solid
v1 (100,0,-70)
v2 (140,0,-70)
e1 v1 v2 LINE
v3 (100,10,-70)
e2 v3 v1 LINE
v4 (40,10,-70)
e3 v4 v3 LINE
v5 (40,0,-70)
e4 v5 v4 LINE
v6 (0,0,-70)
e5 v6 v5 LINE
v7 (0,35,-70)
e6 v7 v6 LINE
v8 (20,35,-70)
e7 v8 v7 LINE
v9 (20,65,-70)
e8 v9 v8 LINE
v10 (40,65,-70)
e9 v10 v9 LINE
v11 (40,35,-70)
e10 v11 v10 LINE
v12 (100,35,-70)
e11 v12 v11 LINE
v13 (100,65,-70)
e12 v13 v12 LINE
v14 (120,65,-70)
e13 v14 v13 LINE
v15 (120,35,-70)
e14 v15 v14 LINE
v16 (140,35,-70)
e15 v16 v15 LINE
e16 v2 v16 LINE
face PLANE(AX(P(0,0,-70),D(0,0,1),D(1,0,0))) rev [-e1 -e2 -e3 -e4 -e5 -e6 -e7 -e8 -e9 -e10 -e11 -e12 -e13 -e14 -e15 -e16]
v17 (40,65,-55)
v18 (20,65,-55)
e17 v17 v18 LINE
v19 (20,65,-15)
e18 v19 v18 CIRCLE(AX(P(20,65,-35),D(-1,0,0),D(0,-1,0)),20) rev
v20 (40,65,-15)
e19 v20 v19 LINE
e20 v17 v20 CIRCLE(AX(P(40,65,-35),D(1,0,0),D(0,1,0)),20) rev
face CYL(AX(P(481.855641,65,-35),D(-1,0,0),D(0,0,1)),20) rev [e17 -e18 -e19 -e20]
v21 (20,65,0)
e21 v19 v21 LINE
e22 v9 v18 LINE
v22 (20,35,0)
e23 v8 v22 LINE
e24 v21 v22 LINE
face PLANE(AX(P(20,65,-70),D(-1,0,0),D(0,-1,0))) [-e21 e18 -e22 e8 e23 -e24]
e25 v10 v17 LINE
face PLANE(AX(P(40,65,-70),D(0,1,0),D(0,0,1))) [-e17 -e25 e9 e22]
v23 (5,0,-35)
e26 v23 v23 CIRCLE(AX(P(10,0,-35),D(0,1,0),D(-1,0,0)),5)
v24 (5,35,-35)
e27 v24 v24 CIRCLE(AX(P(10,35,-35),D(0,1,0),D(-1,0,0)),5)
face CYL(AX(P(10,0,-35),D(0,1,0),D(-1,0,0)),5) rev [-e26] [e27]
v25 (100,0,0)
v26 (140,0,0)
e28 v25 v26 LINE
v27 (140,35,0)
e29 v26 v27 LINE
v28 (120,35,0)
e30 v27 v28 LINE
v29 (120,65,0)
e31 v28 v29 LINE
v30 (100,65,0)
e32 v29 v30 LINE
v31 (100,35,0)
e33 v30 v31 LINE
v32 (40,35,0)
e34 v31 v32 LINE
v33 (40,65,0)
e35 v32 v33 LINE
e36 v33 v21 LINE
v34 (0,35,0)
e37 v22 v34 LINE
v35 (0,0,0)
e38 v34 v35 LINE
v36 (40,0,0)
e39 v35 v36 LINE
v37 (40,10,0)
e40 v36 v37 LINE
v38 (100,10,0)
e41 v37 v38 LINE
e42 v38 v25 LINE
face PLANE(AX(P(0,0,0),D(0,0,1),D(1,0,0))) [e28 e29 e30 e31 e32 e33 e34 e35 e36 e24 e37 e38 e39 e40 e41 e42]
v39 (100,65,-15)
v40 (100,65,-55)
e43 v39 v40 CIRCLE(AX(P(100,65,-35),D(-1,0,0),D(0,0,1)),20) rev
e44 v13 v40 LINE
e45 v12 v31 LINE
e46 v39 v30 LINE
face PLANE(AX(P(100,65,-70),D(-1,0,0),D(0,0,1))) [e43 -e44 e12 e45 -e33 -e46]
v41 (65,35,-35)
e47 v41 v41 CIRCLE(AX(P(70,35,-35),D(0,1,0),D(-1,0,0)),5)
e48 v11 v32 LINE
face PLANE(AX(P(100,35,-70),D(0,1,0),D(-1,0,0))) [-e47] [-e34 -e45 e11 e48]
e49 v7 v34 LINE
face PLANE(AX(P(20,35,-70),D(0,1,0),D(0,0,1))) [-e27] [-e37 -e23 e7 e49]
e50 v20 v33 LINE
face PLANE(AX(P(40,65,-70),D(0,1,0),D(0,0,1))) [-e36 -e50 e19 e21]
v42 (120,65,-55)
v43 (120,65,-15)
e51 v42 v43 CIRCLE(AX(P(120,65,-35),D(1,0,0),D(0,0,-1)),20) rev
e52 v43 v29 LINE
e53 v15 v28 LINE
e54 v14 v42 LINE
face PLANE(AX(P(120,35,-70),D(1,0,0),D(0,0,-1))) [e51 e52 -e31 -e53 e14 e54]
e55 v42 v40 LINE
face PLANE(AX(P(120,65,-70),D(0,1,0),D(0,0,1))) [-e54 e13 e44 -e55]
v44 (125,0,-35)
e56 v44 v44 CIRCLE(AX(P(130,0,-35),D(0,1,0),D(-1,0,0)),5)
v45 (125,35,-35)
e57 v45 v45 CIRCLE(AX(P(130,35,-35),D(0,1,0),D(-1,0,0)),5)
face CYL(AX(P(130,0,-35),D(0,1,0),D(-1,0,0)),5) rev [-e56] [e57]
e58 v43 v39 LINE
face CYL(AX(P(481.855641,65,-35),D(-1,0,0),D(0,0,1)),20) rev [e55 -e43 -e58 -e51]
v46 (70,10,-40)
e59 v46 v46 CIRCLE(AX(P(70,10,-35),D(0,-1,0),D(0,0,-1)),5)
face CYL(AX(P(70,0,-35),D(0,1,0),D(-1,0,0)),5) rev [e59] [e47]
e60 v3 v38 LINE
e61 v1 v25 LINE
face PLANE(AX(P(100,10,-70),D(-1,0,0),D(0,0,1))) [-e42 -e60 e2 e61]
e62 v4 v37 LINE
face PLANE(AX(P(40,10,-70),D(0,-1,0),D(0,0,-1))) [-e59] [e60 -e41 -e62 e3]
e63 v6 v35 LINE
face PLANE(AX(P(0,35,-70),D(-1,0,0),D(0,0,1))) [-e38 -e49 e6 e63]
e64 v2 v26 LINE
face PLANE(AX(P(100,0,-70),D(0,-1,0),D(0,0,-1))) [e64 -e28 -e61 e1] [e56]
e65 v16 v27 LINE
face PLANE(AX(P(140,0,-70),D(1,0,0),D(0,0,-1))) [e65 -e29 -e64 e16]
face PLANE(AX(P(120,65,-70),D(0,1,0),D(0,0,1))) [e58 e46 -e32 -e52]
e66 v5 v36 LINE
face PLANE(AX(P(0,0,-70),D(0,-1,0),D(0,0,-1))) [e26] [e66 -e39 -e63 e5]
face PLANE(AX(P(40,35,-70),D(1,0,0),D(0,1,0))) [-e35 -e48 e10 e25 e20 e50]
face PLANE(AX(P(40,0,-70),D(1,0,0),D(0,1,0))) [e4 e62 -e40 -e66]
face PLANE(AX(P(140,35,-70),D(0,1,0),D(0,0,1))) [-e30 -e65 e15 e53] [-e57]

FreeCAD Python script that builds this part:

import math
import FreeCAD as App
import Part
import Sketcher

V = App.Vector

doc = App.newDocument("Part")
body = doc.addObject("PartDesign::Body", "Body")

# Sketch on XY plane
sketch1 = doc.addObject("Sketcher::SketchObject", "Sketch")
body.addObject(sketch1)
sketch1.AttachmentSupport = (doc.XY_Plane, [""])
sketch1.MapMode = "FlatFace"
sketch1.addGeometry(Part.LineSegment(V(0, 0, 0), V(40, 0, 0)), False)
sketch1.addGeometry(Part.LineSegment(V(40, 0, 0), V(40, 10, 0)), False)
sketch1.addGeometry(Part.LineSegment(V(40, 10, 0), V(100, 10, 0)), False)
sketch1.addGeometry(Part.LineSegment(V(100, 10, 0), V(100, 0, 0)), False)
sketch1.addGeometry(Part.LineSegment(V(100, 0, 0), V(140, 0, 0)), False)
sketch1.addGeometry(Part.LineSegment(V(140, 0, 0), V(140, 35, 0)), False)
sketch1.addGeometry(Part.LineSegment(V(140, 35, 0), V(120, 35, 0)), False)
sketch1.addGeometry(Part.LineSegment(V(120, 35, 0), V(120, 65, 0)), False)
sketch1.addGeometry(Part.LineSegment(V(120, 65, 0), V(100, 65, 0)), False)
sketch1.addGeometry(Part.LineSegment(V(100, 65, 0), V(100, 35, 0)), False)
sketch1.addGeometry(Part.LineSegment(V(100, 35, 0), V(40, 35, 0)), False)
sketch1.addGeometry(Part.LineSegment(V(40, 35, 0), V(40, 65, 0)), False)
sketch1.addGeometry(Part.LineSegment(V(40, 65, 0), V(20, 65, 0)), False)
sketch1.addGeometry(Part.LineSegment(V(20, 65, 0), V(20, 35, 0)), False)
sketch1.addGeometry(Part.LineSegment(V(20, 35, 0), V(0, 35, 0)), False)
sketch1.addGeometry(Part.LineSegment(V(0, 35, 0), V(0, 0, 0)), False)
sketch1.addConstraint(Sketcher.Constraint("Coincident", 0, 2, 1, 1))
sketch1.addConstraint(Sketcher.Constraint("Coincident", 1, 2, 2, 1))
sketch1.addConstraint(Sketcher.Constraint("Coincident", 2, 2, 3, 1))
sketch1.addConstraint(Sketcher.Constraint("Coincident", 3, 2, 4, 1))
sketch1.addConstraint(Sketcher.Constraint("Coincident", 4, 2, 5, 1))
sketch1.addConstraint(Sketcher.Constraint("Coincident", 5, 2, 6, 1))
sketch1.addConstraint(Sketcher.Constraint("Coincident", 6, 2, 7, 1))
sketch1.addConstraint(Sketcher.Constraint("Coincident", 7, 2, 8, 1))
sketch1.addConstraint(Sketcher.Constraint("Coincident", 8, 2, 9, 1))
sketch1.addConstraint(Sketcher.Constraint("Coincident", 9, 2, 10, 1))
sketch1.addConstraint(Sketcher.Constraint("Coincident", 10, 2, 11, 1))
sketch1.addConstraint(Sketcher.Constraint("Coincident", 11, 2, 12, 1))
sketch1.addConstraint(Sketcher.Constraint("Coincident", 12, 2, 13, 1))
sketch1.addConstraint(Sketcher.Constraint("Coincident", 13, 2, 14, 1))
sketch1.addConstraint(Sketcher.Constraint("Coincident", 14, 2, 15, 1))
sketch1.addConstraint(Sketcher.Constraint("Coincident", 15, 2, 0, 1))
sketch1.addConstraint(Sketcher.Constraint("Horizontal", 0))
sketch1.addConstraint(Sketcher.Constraint("Vertical", 1))
sketch1.addConstraint(Sketcher.Constraint("Horizontal", 2))
sketch1.addConstraint(Sketcher.Constraint("Vertical", 3))
sketch1.addConstraint(Sketcher.Constraint("Horizontal", 4))
sketch1.addConstraint(Sketcher.Constraint("Vertical", 5))
sketch1.addConstraint(Sketcher.Constraint("Horizontal", 6))
sketch1.addConstraint(Sketcher.Constraint("Vertical", 7))
sketch1.addConstraint(Sketcher.Constraint("Horizontal", 8))
sketch1.addConstraint(Sketcher.Constraint("Vertical", 9))
sketch1.addConstraint(Sketcher.Constraint("Horizontal", 10))
sketch1.addConstraint(Sketcher.Constraint("Vertical", 11))
sketch1.addConstraint(Sketcher.Constraint("Horizontal", 12))
sketch1.addConstraint(Sketcher.Constraint("Vertical", 13))
sketch1.addConstraint(Sketcher.Constraint("Horizontal", 14))
sketch1.addConstraint(Sketcher.Constraint("Vertical", 15))
sketch1.addConstraint(Sketcher.Constraint("Coincident", 15, 2, -1, 1))
sketch1.addConstraint(Sketcher.Constraint("PointOnObject", 3, 2, -1))
sketch1.addConstraint(Sketcher.Constraint("Horizontal", 6, 2, 9, 2))
sketch1.addConstraint(Sketcher.Constraint("Horizontal", 8, 2, 11, 2))
sketch1.addConstraint(Sketcher.Constraint("Horizontal", 10, 2, 13, 2))
sketch1.addConstraint(Sketcher.Constraint("Vertical", 3, 2, 8, 2))
sketch1.addConstraint(Sketcher.Constraint("Vertical", 1, 2, 10, 2))
sketch1.addConstraint(Sketcher.Constraint("Equal", 0, 4))
sketch1.addConstraint(Sketcher.Constraint("Equal", 6, 8))
sketch1.addConstraint(Sketcher.Constraint("Equal", 8, 12))
sketch1.addConstraint(Sketcher.Constraint("DistanceX", 0, 1, 0, 2, 40.0))
sketch1.addConstraint(Sketcher.Constraint("DistanceX", 2, 1, 2, 2, 60.0))
sketch1.addConstraint(Sketcher.Constraint("DistanceY", 1, 1, 1, 2, 10.0))
sketch1.addConstraint(Sketcher.Constraint("DistanceY", 5, 1, 5, 2, 35.0))
sketch1.addConstraint(Sketcher.Constraint("DistanceY", 7, 1, 7, 2, 30.0))
pad1 = doc.addObject("PartDesign::Pad", "Pad")
body.addObject(pad1)
pad1.Profile = sketch1
pad1.Length = 70
pad1.Reversed = True

# Sketch on YZ plane
sketch2 = doc.addObject("Sketcher::SketchObject", "Sketch001")
body.addObject(sketch2)
sketch2.AttachmentSupport = (doc.YZ_Plane, [""])
sketch2.MapMode = "FlatFace"
sketch2.AttachmentOffset = App.Placement(V(0, 0, 120), App.Rotation())
sketch2.addGeometry(Part.ArcOfCircle(Part.Circle(V(65, -35, 0), V(0, 0, 1), 20), math.radians(90), math.radians(270)), False)
sketch2.addGeometry(Part.LineSegment(V(65, -55, 0), V(606, -55, 0)), False)
sketch2.addGeometry(Part.LineSegment(V(606, -55, 0), V(606, -15, 0)), False)
sketch2.addGeometry(Part.LineSegment(V(606, -15, 0), V(65, -15, 0)), False)
sketch2.addConstraint(Sketcher.Constraint("Tangent", 0, 2, 1, 1))
sketch2.addConstraint(Sketcher.Constraint("Coincident", 1, 2, 2, 1))
sketch2.addConstraint(Sketcher.Constraint("Coincident", 2, 2, 3, 1))
sketch2.addConstraint(Sketcher.Constraint("Tangent", 3, 2, 0, 1))
sketch2.addConstraint(Sketcher.Constraint("Horizontal", 1))
sketch2.addConstraint(Sketcher.Constraint("Vertical", 2))
sketch2.addConstraint(Sketcher.Constraint("Horizontal", 3))
sketch2.addConstraint(Sketcher.Constraint("Radius", 0, 20.0))
sketch2.addConstraint(Sketcher.Constraint("DistanceX", -1, 1, 0, 3, 65.0))
sketch2.addConstraint(Sketcher.Constraint("DistanceY", 0, 3, -1, 1, 35.0))
sketch2.addConstraint(Sketcher.Constraint("DistanceX", 1, 1, 1, 2, 540.881591))
pocket1 = doc.addObject("PartDesign::Pocket", "Pocket")
body.addObject(pocket1)
pocket1.Profile = sketch2
pocket1.Type = "ThroughAll"
pocket1.Midplane = True

# Sketch on XZ plane
sketch3 = doc.addObject("Sketcher::SketchObject", "Sketch002")
body.addObject(sketch3)
sketch3.AttachmentSupport = (doc.XZ_Plane, [""])
sketch3.MapMode = "FlatFace"
sketch3.AttachmentOffset = App.Placement(V(0, 0, -35), App.Rotation())
sketch3.addGeometry(Part.Circle(V(130, -35, 0), V(0, 0, 1), 5), False)
sketch3.addGeometry(Part.Circle(V(10, -35, 0), V(0, 0, 1), 5), False)
sketch3.addGeometry(Part.Circle(V(70, -35, 0), V(0, 0, 1), 5), False)
sketch3.addConstraint(Sketcher.Constraint("Equal", 0, 1))
sketch3.addConstraint(Sketcher.Constraint("Equal", 1, 2))
sketch3.addConstraint(Sketcher.Constraint("Horizontal", 0, 3, 1, 3))
sketch3.addConstraint(Sketcher.Constraint("Horizontal", 1, 3, 2, 3))
sketch3.addConstraint(Sketcher.Constraint("Diameter", 0, 10.0))
sketch3.addConstraint(Sketcher.Constraint("DistanceX", -1, 1, 0, 3, 130.0))
sketch3.addConstraint(Sketcher.Constraint("DistanceY", 0, 3, -1, 1, 35.0))
sketch3.addConstraint(Sketcher.Constraint("DistanceX", -1, 1, 1, 3, 10.0))
sketch3.addConstraint(Sketcher.Constraint("DistanceX", -1, 1, 2, 3, 70.0))
pocket2 = doc.addObject("PartDesign::Pocket", "Pocket001")
body.addObject(pocket2)
pocket2.Profile = sketch3
pocket2.Type = "ThroughAll"
pocket2.Reversed = True

doc.recompute()
